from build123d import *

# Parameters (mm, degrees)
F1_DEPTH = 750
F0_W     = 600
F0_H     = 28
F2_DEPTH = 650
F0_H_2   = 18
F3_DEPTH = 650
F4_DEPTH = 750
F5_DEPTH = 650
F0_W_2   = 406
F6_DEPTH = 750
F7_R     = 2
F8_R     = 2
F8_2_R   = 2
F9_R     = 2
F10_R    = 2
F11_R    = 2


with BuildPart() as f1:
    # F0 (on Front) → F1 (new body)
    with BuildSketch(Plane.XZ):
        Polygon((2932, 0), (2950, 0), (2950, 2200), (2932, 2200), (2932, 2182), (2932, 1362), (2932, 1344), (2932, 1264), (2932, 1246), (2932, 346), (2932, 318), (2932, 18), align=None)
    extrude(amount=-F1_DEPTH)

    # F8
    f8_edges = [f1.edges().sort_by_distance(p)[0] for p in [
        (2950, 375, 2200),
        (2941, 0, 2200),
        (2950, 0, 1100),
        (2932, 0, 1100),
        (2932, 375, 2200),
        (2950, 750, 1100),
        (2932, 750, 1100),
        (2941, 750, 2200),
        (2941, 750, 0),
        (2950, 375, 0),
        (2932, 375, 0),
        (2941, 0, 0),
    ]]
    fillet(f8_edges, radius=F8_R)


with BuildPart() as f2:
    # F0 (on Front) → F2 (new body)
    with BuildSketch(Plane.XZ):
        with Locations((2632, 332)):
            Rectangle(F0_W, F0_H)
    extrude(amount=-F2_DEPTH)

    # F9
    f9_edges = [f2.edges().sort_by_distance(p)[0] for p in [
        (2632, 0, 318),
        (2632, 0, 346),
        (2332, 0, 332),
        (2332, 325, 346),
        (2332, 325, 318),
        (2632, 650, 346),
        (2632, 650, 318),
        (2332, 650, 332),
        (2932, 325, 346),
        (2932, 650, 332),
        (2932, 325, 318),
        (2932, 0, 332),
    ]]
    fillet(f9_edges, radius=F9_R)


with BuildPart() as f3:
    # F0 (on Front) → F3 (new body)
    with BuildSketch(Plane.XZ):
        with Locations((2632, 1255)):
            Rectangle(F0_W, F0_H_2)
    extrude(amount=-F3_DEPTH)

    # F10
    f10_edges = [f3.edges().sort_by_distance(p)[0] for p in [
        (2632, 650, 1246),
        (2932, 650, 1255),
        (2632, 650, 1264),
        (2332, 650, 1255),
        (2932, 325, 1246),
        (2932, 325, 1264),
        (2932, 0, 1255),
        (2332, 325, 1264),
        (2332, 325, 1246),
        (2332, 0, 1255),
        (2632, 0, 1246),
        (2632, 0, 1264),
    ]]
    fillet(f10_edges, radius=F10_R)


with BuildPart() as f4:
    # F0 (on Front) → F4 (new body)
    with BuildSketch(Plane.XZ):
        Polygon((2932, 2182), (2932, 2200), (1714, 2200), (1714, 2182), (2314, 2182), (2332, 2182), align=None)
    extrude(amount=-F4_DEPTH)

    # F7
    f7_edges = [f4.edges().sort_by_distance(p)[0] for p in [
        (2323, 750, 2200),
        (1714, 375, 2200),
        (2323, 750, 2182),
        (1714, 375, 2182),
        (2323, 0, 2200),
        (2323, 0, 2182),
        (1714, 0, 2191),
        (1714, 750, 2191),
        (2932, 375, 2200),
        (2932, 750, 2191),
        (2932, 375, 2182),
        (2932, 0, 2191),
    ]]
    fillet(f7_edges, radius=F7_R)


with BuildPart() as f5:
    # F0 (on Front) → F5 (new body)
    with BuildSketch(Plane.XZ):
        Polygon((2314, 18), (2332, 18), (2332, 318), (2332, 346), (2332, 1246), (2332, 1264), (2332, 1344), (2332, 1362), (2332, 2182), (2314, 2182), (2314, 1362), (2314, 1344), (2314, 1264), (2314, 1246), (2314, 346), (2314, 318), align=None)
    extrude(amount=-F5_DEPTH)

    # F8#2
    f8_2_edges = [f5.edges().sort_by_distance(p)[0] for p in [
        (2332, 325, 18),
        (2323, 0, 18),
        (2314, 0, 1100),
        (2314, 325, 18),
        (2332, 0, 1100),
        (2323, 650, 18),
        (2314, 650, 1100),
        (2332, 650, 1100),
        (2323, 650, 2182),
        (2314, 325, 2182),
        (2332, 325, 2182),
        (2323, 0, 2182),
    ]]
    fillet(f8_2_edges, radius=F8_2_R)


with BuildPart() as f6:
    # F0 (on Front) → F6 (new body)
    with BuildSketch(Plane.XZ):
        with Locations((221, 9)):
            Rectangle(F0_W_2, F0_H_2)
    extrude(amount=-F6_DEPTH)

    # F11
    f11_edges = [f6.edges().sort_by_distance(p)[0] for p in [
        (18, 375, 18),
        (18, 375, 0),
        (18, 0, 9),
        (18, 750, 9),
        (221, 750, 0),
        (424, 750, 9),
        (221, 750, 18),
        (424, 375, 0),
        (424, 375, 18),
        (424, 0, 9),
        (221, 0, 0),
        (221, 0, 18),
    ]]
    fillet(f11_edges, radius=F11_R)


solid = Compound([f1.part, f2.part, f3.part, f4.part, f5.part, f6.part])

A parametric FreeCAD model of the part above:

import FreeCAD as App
import Part
import Sketcher


def add_polygon(sketch, points):
    """Adds a closed chain of lines whose ends are joined by coincident constraints."""
    first, n = sketch.GeometryCount, len(points)
    for a, b in zip(points, points[1:] + points[:1]):
        sketch.addGeometry(Part.LineSegment(App.Vector(*a, 0), App.Vector(*b, 0)), False)
    for i in range(n):
        sketch.addConstraint(Sketcher.Constraint("Coincident", first + i, 2, first + (i + 1) % n, 1))

doc = App.newDocument("Part")
body = doc.addObject("PartDesign::Body", "Body")

sketch1 = body.newObject("Sketcher::SketchObject", "Sketch")
sketch1.AttachmentSupport = (doc.getObject("XZ_Plane"), [""])
sketch1.MapMode = "FlatFace"
add_polygon(sketch1, [(2932, 0), (2950, 0), (2950, 2200), (2932, 2200)])
sketch1.addConstraint([
    Sketcher.Constraint("Horizontal", 0),
    Sketcher.Constraint("Vertical", 1),
    Sketcher.Constraint("Horizontal", 2),
    Sketcher.Constraint("Vertical", 3),
    Sketcher.Constraint("PointOnObject", 0, 2, -1),
    Sketcher.Constraint("DistanceX", 0, 1, 0, 2, 18.0),
    Sketcher.Constraint("DistanceY", 1, 1, 1, 2, 2200.0),
    Sketcher.Constraint("DistanceX", -1, 1, 0, 2, 2950.0),
])
pad1 = body.newObject("PartDesign::Pad", "Pad")
pad1.Profile = sketch1
pad1.Length = 750
pad1.Reversed = True
doc.recompute()

fillet = body.newObject("PartDesign::Fillet", "Fillet")
fillet.Base = (pad1, ["Edge1"])
fillet.UseAllEdges = True
fillet.Radius = 2
body2 = doc.addObject("PartDesign::Body", "Body001")

sketch2 = body2.newObject("Sketcher::SketchObject", "Sketch001")
sketch2.AttachmentSupport = (doc.getObject("XZ_Plane001"), [""])
sketch2.MapMode = "FlatFace"
add_polygon(sketch2, [(2332, 346), (2332, 318), (2932, 318), (2932, 346)])
sketch2.addConstraint([
    Sketcher.Constraint("Vertical", 0),
    Sketcher.Constraint("Horizontal", 1),
    Sketcher.Constraint("Vertical", 2),
    Sketcher.Constraint("Horizontal", 3),
    Sketcher.Constraint("DistanceX", 1, 1, 1, 2, 600.0),
    Sketcher.Constraint("DistanceY", 0, 2, 0, 1, 28.0),
    Sketcher.Constraint("DistanceX", -1, 1, 0, 2, 2332.0),
    Sketcher.Constraint("DistanceY", -1, 1, 0, 2, 318.0),
])
pad2 = body2.newObject("PartDesign::Pad", "Pad001")
pad2.Profile = sketch2
pad2.Length = 650
pad2.Reversed = True
doc.recompute()

fillet2 = body2.newObject("PartDesign::Fillet", "Fillet001")
fillet2.Base = (pad2, ["Edge1"])
fillet2.UseAllEdges = True
fillet2.Radius = 2
body3 = doc.addObject("PartDesign::Body", "Body002")

sketch3 = body3.newObject("Sketcher::SketchObject", "Sketch002")
sketch3.AttachmentSupport = (doc.getObject("XZ_Plane002"), [""])
sketch3.MapMode = "FlatFace"
add_polygon(sketch3, [(2332, 1264), (2332, 1246), (2932, 1246), (2932, 1264)])
sketch3.addConstraint([
    Sketcher.Constraint("Vertical", 0),
    Sketcher.Constraint("Horizontal", 1),
    Sketcher.Constraint("Vertical", 2),
    Sketcher.Constraint("Horizontal", 3),
    Sketcher.Constraint("DistanceX", 1, 1, 1, 2, 600.0),
    Sketcher.Constraint("DistanceY", 0, 2, 0, 1, 18.0),
    Sketcher.Constraint("DistanceX", -1, 1, 0, 2, 2332.0),
    Sketcher.Constraint("DistanceY", -1, 1, 0, 2, 1246.0),
])
pad3 = body3.newObject("PartDesign::Pad", "Pad002")
pad3.Profile = sketch3
pad3.Length = 650
pad3.Reversed = True
doc.recompute()

fillet3 = body3.newObject("PartDesign::Fillet", "Fillet002")
fillet3.Base = (pad3, ["Edge1"])
fillet3.UseAllEdges = True
fillet3.Radius = 2
body4 = doc.addObject("PartDesign::Body", "Body003")

sketch4 = body4.newObject("Sketcher::SketchObject", "Sketch003")
sketch4.AttachmentSupport = (doc.getObject("XZ_Plane003"), [""])
sketch4.MapMode = "FlatFace"
add_polygon(sketch4, [(2932, 2182), (2932, 2200), (1714, 2200), (1714, 2182)])
sketch4.addConstraint([
    Sketcher.Constraint("Vertical", 0),
    Sketcher.Constraint("Horizontal", 1),
    Sketcher.Constraint("Vertical", 2),
    Sketcher.Constraint("Horizontal", 3),
    Sketcher.Constraint("DistanceX", 1, 2, 1, 1, 1218.0),
    Sketcher.Constraint("DistanceY", 0, 1, 0, 2, 18.0),
    Sketcher.Constraint("DistanceX", -1, 1, 0, 2, 2932.0),
    Sketcher.Constraint("DistanceY", -1, 1, 0, 2, 2200.0),
])
pad4 = body4.newObject("PartDesign::Pad", "Pad003")
pad4.Profile = sketch4
pad4.Length = 750
pad4.Reversed = True
doc.recompute()

fillet4 = body4.newObject("PartDesign::Fillet", "Fillet003")
fillet4.Base = (pad4, ["Edge1"])
fillet4.UseAllEdges = True
fillet4.Radius = 2
body5 = doc.addObject("PartDesign::Body", "Body004")

sketch5 = body5.newObject("Sketcher::SketchObject", "Sketch004")
sketch5.AttachmentSupport = (doc.getObject("XZ_Plane004"), [""])
sketch5.MapMode = "FlatFace"
add_polygon(sketch5, [(2314, 18), (2332, 18), (2332, 2182), (2314, 2182)])
sketch5.addConstraint([
    Sketcher.Constraint("Horizontal", 0),
    Sketcher.Constraint("Vertical", 1),
    Sketcher.Constraint("Horizontal", 2),
    Sketcher.Constraint("Vertical", 3),
    Sketcher.Constraint("DistanceX", 0, 1, 0, 2, 18.0),
    Sketcher.Constraint("DistanceY", 1, 1, 1, 2, 2164.0),
    Sketcher.Constraint("DistanceX", -1, 1, 0, 2, 2332.0),
    Sketcher.Constraint("DistanceY", -1, 1, 0, 2, 18.0),
])
pad5 = body5.newObject("PartDesign::Pad", "Pad004")
pad5.Profile = sketch5
pad5.Length = 650
pad5.Reversed = True
doc.recompute()

fillet5 = body5.newObject("PartDesign::Fillet", "Fillet004")
fillet5.Base = (pad5, ["Edge1"])
fillet5.UseAllEdges = True
fillet5.Radius = 2
body6 = doc.addObject("PartDesign::Body", "Body005")

sketch6 = body6.newObject("Sketcher::SketchObject", "Sketch005")
sketch6.AttachmentSupport = (doc.getObject("XZ_Plane005"), [""])
sketch6.MapMode = "FlatFace"
add_polygon(sketch6, [(18, 18), (18, 0), (424, 0), (424, 18)])
sketch6.addConstraint([
    Sketcher.Constraint("Vertical", 0),
    Sketcher.Constraint("Horizontal", 1),
    Sketcher.Constraint("Vertical", 2),
    Sketcher.Constraint("Horizontal", 3),
    Sketcher.Constraint("PointOnObject", 0, 2, -1),
    Sketcher.Constraint("DistanceX", 1, 1, 1, 2, 406.0),
    Sketcher.Constraint("DistanceY", 0, 2, 0, 1, 18.0),
    Sketcher.Constraint("DistanceX", -1, 1, 0, 2, 18.0),
])
pad6 = body6.newObject("PartDesign::Pad", "Pad005")
pad6.Profile = sketch6
pad6.Length = 750
pad6.Reversed = True
doc.recompute()

fillet6 = body6.newObject("PartDesign::Fillet", "Fillet005")
fillet6.Base = (pad6, ["Edge1"])
fillet6.UseAllEdges = True
fillet6.Radius = 2

doc.recompute()
